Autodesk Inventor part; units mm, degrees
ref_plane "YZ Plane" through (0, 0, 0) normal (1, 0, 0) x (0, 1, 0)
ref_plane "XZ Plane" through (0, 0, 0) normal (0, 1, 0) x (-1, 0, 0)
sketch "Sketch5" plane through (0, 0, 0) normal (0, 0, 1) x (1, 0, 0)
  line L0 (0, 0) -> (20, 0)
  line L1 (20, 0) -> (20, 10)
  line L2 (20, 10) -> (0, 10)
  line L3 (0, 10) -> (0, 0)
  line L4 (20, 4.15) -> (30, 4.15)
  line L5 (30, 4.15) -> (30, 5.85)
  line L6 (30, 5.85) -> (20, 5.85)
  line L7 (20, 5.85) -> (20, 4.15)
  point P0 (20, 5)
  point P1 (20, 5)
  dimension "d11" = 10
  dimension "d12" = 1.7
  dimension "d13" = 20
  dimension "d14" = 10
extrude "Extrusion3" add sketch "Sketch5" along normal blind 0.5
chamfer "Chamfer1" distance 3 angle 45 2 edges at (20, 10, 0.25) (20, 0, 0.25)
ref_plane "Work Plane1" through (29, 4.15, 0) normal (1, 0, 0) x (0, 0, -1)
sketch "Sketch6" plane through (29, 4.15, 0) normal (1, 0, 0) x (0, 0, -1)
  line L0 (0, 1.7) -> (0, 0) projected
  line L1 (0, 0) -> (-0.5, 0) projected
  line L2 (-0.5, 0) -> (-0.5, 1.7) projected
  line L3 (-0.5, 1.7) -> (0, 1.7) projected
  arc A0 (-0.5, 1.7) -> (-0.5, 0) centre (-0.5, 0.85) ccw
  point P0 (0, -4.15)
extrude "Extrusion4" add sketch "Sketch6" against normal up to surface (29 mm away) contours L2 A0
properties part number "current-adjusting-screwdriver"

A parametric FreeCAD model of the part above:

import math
import FreeCAD as App
import Part
import Sketcher

V = App.Vector


def edges_at(feature, points):
    """Names of the edges that pass closest to the given points."""
    edges = feature.Shape.Edges
    near = lambda p: min(range(len(edges)), key=lambda i: edges[i].distToShape(Part.Vertex(*p))[0])
    return sorted({f"Edge{near(p) + 1}" for p in points})


def add_polygon(sketch, points):
    """Adds a closed chain of lines whose ends are joined by coincident constraints."""
    first, n = sketch.GeometryCount, len(points)
    for a, b in zip(points, points[1:] + points[:1]):
        sketch.addGeometry(Part.LineSegment(App.Vector(*a, 0), App.Vector(*b, 0)), False)
    for i in range(n):
        sketch.addConstraint(Sketcher.Constraint("Coincident", first + i, 2, first + (i + 1) % n, 1))

doc = App.newDocument("Part")
params = doc.addObject("Spreadsheet::Sheet", "Params")
for row, (alias, value) in enumerate([
    ("sketch1_width", "20 mm"),
    ("sketch1_width2", "10 mm"),
    ("sketch1_height", "1.7 mm"),
    ("pad1_length", "0.5 mm"),
    ("chamfer_size", "3 mm"),
    ("sketch2_radius", "0.85 mm"),
    ("pad2_length", "29 mm"),
], start=1):
    params.set(f"A{row}", alias)
    params.set(f"B{row}", "=" + value)
    params.setAlias(f"B{row}", alias)

body = doc.addObject("PartDesign::Body", "Body")

sketch1 = doc.addObject("Sketcher::SketchObject", "Sketch")
body.addObject(sketch1)
sketch1.AttachmentSupport = (doc.XY_Plane, [""])
sketch1.MapMode = "FlatFace"
add_polygon(sketch1, [(0, 10), (0, 0), (20, 0), (20, 4.2), (30, 4.2), (30, 5.8), (20, 5.8), (20, 10)])
sketch1.addConstraint(Sketcher.Constraint("Vertical", 0))
sketch1.addConstraint(Sketcher.Constraint("Horizontal", 1))
sketch1.addConstraint(Sketcher.Constraint("Vertical", 2))
sketch1.addConstraint(Sketcher.Constraint("Horizontal", 3))
sketch1.addConstraint(Sketcher.Constraint("Vertical", 4))
sketch1.addConstraint(Sketcher.Constraint("Horizontal", 5))
sketch1.addConstraint(Sketcher.Constraint("Vertical", 6))
sketch1.addConstraint(Sketcher.Constraint("Horizontal", 7))
sketch1.addConstraint(Sketcher.Constraint("Coincident", 0, 2, -1, 1))
sketch1.addConstraint(Sketcher.Constraint("Vertical", 2, 2, 5, 2))
sketch1.addConstraint(Sketcher.Constraint("Equal", 5, 0))
sketch1.addConstraint(Sketcher.Constraint("Equal", 2, 6))
sketch1.addConstraint(Sketcher.Constraint("DistanceX", 1, 1, 1, 2, 20.0))
sketch1.addConstraint(Sketcher.Constraint("DistanceX", 3, 1, 3, 2, 10.0))
sketch1.addConstraint(Sketcher.Constraint("DistanceY", 4, 1, 4, 2, 1.7))
sketch1.setExpression("Constraints[20]", "Params.sketch1_width")
sketch1.setExpression("Constraints[21]", "Params.sketch1_width2")
sketch1.setExpression("Constraints[22]", "Params.sketch1_height")
pad1 = doc.addObject("PartDesign::Pad", "Pad")
body.addObject(pad1)
pad1.Profile = sketch1
pad1.setExpression("Length", "Params.pad1_length")
doc.recompute()

chamfer = doc.addObject("PartDesign::Chamfer", "Chamfer")
body.addObject(chamfer)
chamfer.Base = (pad1, edges_at(pad1, [(20, 10, 0.25), (20, 0, 0.25)]))
chamfer.setExpression("Size", "Params.chamfer_size")

sketch2 = doc.addObject("Sketcher::SketchObject", "Sketch001")
body.addObject(sketch2)
sketch2.AttachmentSupport = (doc.YZ_Plane, [""])
sketch2.MapMode = "FlatFace"
sketch2.AttachmentOffset = App.Placement(V(0, 0, 29), App.Rotation())
sketch2.addGeometry(Part.LineSegment(V(4.2, 0.5, 0), V(5.8, 0.5, 0)), False)
sketch2.addGeometry(Part.ArcOfCircle(Part.Circle(V(5, 0.5, 0), V(0, 0, 1), 0.8), math.radians(0), math.radians(180)), False)
sketch2.addConstraint(Sketcher.Constraint("Coincident", 0, 1, 1, 2))
sketch2.addConstraint(Sketcher.Constraint("Coincident", 1, 1, 0, 2))
sketch2.addConstraint(Sketcher.Constraint("Horizontal", 0))
sketch2.addConstraint(Sketcher.Constraint("Horizontal", 1, 3, 0, 1))
sketch2.addConstraint(Sketcher.Constraint("Radius", 1, 0.85))
sketch2.addConstraint(Sketcher.Constraint("DistanceX", -1, 1, 1, 3, 5.0))
sketch2.addConstraint(Sketcher.Constraint("DistanceY", -1, 1, 1, 3, 0.5))
sketch2.setExpression("Constraints[4]", "Params.sketch2_radius")
pad2 = doc.addObject("PartDesign::Pad", "Pad001")
body.addObject(pad2)
pad2.Profile = sketch2
pad2.setExpression("Length", "Params.pad2_length")
pad2.Reversed = True

doc.recompute()
